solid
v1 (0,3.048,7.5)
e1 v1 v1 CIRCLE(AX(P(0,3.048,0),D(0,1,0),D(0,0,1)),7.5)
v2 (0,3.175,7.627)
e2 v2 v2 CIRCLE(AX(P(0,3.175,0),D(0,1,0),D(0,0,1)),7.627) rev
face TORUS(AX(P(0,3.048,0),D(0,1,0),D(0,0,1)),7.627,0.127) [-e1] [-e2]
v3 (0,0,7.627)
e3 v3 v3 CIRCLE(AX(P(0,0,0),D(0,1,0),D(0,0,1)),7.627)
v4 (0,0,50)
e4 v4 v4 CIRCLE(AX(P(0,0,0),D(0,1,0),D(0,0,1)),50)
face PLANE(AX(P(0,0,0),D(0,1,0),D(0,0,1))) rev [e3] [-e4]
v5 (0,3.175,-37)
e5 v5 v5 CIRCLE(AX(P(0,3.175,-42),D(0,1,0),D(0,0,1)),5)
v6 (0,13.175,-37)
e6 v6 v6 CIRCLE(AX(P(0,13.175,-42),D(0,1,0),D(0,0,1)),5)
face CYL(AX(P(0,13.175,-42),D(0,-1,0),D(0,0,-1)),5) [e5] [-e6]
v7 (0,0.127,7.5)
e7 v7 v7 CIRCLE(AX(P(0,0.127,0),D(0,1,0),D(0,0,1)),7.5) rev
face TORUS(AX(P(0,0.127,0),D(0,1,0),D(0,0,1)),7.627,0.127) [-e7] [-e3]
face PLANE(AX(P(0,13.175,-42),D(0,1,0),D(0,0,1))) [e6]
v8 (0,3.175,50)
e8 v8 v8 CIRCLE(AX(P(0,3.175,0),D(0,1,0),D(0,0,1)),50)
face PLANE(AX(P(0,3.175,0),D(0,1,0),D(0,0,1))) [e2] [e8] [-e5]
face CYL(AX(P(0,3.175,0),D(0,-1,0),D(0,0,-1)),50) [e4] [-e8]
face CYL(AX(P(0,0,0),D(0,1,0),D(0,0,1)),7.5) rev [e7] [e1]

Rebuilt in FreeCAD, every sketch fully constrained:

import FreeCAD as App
import Part
import Sketcher


def edges_at(feature, points):
    """Names of the edges that pass closest to the given points."""
    edges = feature.Shape.Edges
    near = lambda p: min(range(len(edges)), key=lambda i: edges[i].distToShape(Part.Vertex(*p))[0])
    return sorted({f"Edge{near(p) + 1}" for p in points})

doc = App.newDocument("Part")
body = doc.addObject("PartDesign::Body", "Body")

sketch1 = doc.addObject("Sketcher::SketchObject", "Sketch")
body.addObject(sketch1)
sketch1.AttachmentSupport = (doc.XZ_Plane, [""])
sketch1.MapMode = "FlatFace"
sketch1.addGeometry(Part.Circle(App.Vector(0, 0, 0), App.Vector(0, 0, 1), 50), False)
sketch1.addConstraint([
    Sketcher.Constraint("Coincident", 0, 3, -1, 1),
    Sketcher.Constraint("Diameter", 0, 100.0),
])
pad1 = doc.addObject("PartDesign::Pad", "Pad")
body.addObject(pad1)
pad1.Profile = sketch1
pad1.Length = 3.175
pad1.Reversed = True

sketch2 = doc.addObject("Sketcher::SketchObject", "Sketch001")
body.addObject(sketch2)
sketch2.AttachmentSupport = (doc.XZ_Plane, [""])
sketch2.MapMode = "FlatFace"
sketch2.AttachmentOffset = App.Placement(App.Vector(0, 0, -3.175), App.Rotation())
sketch2.addGeometry(Part.Circle(App.Vector(0, 0, 0), App.Vector(0, 0, 1), 8), False)
sketch2.addConstraint([
    Sketcher.Constraint("Coincident", 0, 3, -1, 1),
    Sketcher.Constraint("Diameter", 0, 15.0),
])
pocket1 = doc.addObject("PartDesign::Pocket", "Pocket")
body.addObject(pocket1)
pocket1.Profile = sketch2
pocket1.Type = "ThroughAll"
pocket1.Reversed = True
doc.recompute()

fillet = doc.addObject("PartDesign::Fillet", "Fillet")
body.addObject(fillet)
fillet.Base = (pocket1, edges_at(pocket1, [(0, 0, -7.5), (0, 3.175, -7.5)]))
fillet.Radius = 0.127

sketch3 = doc.addObject("Sketcher::SketchObject", "Sketch002")
body.addObject(sketch3)
sketch3.AttachmentSupport = (doc.XZ_Plane, [""])
sketch3.MapMode = "FlatFace"
sketch3.AttachmentOffset = App.Placement(App.Vector(0, 0, -3.175), App.Rotation())
sketch3.addGeometry(Part.Circle(App.Vector(0, -42, 0), App.Vector(0, 0, 1), 5), False)
sketch3.addConstraint([
    Sketcher.Constraint("PointOnObject", 0, 3, -2),
    Sketcher.Constraint("Diameter", 0, 10.0),
    Sketcher.Constraint("DistanceY", 0, 3, -1, 1, 42.0),
])
pad2 = doc.addObject("PartDesign::Pad", "Pad001")
body.addObject(pad2)
pad2.Profile = sketch3
pad2.Length = 10
pad2.Reversed = True

doc.recompute()
